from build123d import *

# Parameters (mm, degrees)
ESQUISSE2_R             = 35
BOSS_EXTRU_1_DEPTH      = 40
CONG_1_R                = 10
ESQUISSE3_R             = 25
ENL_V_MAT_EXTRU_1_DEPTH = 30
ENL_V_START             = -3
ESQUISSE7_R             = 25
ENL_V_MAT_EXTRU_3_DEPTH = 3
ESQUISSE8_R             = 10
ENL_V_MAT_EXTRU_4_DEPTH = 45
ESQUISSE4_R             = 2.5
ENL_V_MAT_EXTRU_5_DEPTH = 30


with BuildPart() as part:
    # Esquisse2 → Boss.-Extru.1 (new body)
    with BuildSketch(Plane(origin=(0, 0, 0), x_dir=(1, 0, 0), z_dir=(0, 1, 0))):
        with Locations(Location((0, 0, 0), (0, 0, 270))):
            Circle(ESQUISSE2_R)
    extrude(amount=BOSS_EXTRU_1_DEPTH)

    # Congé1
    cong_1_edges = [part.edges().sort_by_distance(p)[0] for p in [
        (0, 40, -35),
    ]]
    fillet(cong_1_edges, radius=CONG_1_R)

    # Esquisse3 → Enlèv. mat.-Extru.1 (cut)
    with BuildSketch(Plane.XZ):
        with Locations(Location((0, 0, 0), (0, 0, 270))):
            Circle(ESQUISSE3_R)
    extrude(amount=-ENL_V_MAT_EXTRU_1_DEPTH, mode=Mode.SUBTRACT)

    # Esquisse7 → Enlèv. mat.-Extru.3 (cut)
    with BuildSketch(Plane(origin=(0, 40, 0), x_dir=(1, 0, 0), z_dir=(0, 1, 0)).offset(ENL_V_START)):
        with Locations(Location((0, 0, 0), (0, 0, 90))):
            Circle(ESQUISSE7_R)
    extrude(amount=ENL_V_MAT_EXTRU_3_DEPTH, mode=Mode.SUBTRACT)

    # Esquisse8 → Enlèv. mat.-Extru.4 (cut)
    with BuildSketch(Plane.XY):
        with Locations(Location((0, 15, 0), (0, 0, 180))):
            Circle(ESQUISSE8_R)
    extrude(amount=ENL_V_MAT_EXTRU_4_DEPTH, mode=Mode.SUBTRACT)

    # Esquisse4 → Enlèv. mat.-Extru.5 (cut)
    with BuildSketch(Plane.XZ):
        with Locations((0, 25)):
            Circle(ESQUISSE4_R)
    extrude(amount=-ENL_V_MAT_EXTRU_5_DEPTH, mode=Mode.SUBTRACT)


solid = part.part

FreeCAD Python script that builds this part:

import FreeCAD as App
import Part
import Sketcher

V = App.Vector


def edges_at(feature, points):
    """Names of the edges that pass closest to the given points."""
    edges = feature.Shape.Edges
    near = lambda p: min(range(len(edges)), key=lambda i: edges[i].distToShape(Part.Vertex(*p))[0])
    return sorted({f"Edge{near(p) + 1}" for p in points})

doc = App.newDocument("Part")
params = doc.addObject("Spreadsheet::Sheet", "Params")
for row, (alias, value) in enumerate([
    ("sketch1_diameter", "70 mm"),
    ("pad1_length", "40 mm"),
    ("fillet_radius", "10 mm"),
    ("sketch2_diameter", "50 mm"),
    ("pocket1_length", "30 mm"),
    ("sketch3_diameter", "50 mm"),
    ("pocket2_length", "3 mm"),
    ("sketch4_diameter", "20 mm"),
    ("pocket3_length", "45 mm"),
    ("sketch5_diameter", "5 mm"),
    ("pocket4_length", "30 mm"),
], start=1):
    params.set(f"A{row}", alias)
    params.set(f"B{row}", "=" + value)
    params.setAlias(f"B{row}", alias)

body = doc.addObject("PartDesign::Body", "Body")

sketch1 = body.newObject("Sketcher::SketchObject", "Sketch")
sketch1.AttachmentSupport = (doc.getObject("XZ_Plane"), [""])
sketch1.MapMode = "FlatFace"
sketch1.addGeometry(Part.Circle(V(0, 0, 0), V(0, 0, 1), 35), False)
sketch1.addConstraint(Sketcher.Constraint("Coincident", 0, 3, -1, 1))
sketch1.addConstraint(Sketcher.Constraint("Diameter", 0, 70.0))
sketch1.setExpression("Constraints[1]", "Params.sketch1_diameter")
pad1 = body.newObject("PartDesign::Pad", "Pad")
pad1.Profile = sketch1
pad1.setExpression("Length", "Params.pad1_length")
pad1.Reversed = True
doc.recompute()

fillet = body.newObject("PartDesign::Fillet", "Fillet")
fillet.Base = (pad1, edges_at(pad1, [(0, 40, -35)]))
fillet.setExpression("Radius", "Params.fillet_radius")

sketch2 = body.newObject("Sketcher::SketchObject", "Sketch001")
sketch2.AttachmentSupport = (doc.getObject("XZ_Plane"), [""])
sketch2.MapMode = "FlatFace"
sketch2.addGeometry(Part.Circle(V(0, 0, 0), V(0, 0, 1), 25), False)
sketch2.addConstraint(Sketcher.Constraint("Coincident", 0, 3, -1, 1))
sketch2.addConstraint(Sketcher.Constraint("Diameter", 0, 50.0))
sketch2.setExpression("Constraints[1]", "Params.sketch2_diameter")
pocket1 = body.newObject("PartDesign::Pocket", "Pocket")
pocket1.Profile = sketch2
pocket1.setExpression("Length", "Params.pocket1_length")

sketch3 = body.newObject("Sketcher::SketchObject", "Sketch002")
sketch3.AttachmentSupport = (doc.getObject("XZ_Plane"), [""])
sketch3.MapMode = "FlatFace"
sketch3.AttachmentOffset = App.Placement(V(0, 0, -37), App.Rotation())
sketch3.addGeometry(Part.Circle(V(0, 0, 0), V(0, 0, 1), 25), False)
sketch3.addConstraint(Sketcher.Constraint("Coincident", 0, 3, -1, 1))
sketch3.addConstraint(Sketcher.Constraint("Diameter", 0, 50.0))
sketch3.setExpression("Constraints[1]", "Params.sketch3_diameter")
pocket2 = body.newObject("PartDesign::Pocket", "Pocket001")
pocket2.Profile = sketch3
pocket2.setExpression("Length", "Params.pocket2_length")

sketch4 = body.newObject("Sketcher::SketchObject", "Sketch003")
sketch4.AttachmentSupport = (doc.getObject("XY_Plane"), [""])
sketch4.MapMode = "FlatFace"
sketch4.addGeometry(Part.Circle(V(0, 15, 0), V(0, 0, 1), 10), False)
sketch4.addConstraint(Sketcher.Constraint("PointOnObject", 0, 3, -2))
sketch4.addConstraint(Sketcher.Constraint("Diameter", 0, 20.0))
sketch4.addConstraint(Sketcher.Constraint("DistanceY", -1, 1, 0, 3, 15.0))
sketch4.setExpression("Constraints[1]", "Params.sketch4_diameter")
pocket3 = body.newObject("PartDesign::Pocket", "Pocket002")
pocket3.Profile = sketch4
pocket3.setExpression("Length", "Params.pocket3_length")
pocket3.Reversed = True

sketch5 = body.newObject("Sketcher::SketchObject", "Sketch004")
sketch5.AttachmentSupport = (doc.getObject("XZ_Plane"), [""])
sketch5.MapMode = "FlatFace"
sketch5.addGeometry(Part.Circle(V(0, 25, 0), V(0, 0, 1), 2.5), False)
sketch5.addConstraint(Sketcher.Constraint("PointOnObject", 0, 3, -2))
sketch5.addConstraint(Sketcher.Constraint("Diameter", 0, 5.0))
sketch5.addConstraint(Sketcher.Constraint("DistanceY", -1, 1, 0, 3, 25.0))
sketch5.setExpression("Constraints[1]", "Params.sketch5_diameter")
pocket4 = body.newObject("PartDesign::Pocket", "Pocket003")
pocket4.Profile = sketch5
pocket4.setExpression("Length", "Params.pocket4_length")

doc.recompute()
